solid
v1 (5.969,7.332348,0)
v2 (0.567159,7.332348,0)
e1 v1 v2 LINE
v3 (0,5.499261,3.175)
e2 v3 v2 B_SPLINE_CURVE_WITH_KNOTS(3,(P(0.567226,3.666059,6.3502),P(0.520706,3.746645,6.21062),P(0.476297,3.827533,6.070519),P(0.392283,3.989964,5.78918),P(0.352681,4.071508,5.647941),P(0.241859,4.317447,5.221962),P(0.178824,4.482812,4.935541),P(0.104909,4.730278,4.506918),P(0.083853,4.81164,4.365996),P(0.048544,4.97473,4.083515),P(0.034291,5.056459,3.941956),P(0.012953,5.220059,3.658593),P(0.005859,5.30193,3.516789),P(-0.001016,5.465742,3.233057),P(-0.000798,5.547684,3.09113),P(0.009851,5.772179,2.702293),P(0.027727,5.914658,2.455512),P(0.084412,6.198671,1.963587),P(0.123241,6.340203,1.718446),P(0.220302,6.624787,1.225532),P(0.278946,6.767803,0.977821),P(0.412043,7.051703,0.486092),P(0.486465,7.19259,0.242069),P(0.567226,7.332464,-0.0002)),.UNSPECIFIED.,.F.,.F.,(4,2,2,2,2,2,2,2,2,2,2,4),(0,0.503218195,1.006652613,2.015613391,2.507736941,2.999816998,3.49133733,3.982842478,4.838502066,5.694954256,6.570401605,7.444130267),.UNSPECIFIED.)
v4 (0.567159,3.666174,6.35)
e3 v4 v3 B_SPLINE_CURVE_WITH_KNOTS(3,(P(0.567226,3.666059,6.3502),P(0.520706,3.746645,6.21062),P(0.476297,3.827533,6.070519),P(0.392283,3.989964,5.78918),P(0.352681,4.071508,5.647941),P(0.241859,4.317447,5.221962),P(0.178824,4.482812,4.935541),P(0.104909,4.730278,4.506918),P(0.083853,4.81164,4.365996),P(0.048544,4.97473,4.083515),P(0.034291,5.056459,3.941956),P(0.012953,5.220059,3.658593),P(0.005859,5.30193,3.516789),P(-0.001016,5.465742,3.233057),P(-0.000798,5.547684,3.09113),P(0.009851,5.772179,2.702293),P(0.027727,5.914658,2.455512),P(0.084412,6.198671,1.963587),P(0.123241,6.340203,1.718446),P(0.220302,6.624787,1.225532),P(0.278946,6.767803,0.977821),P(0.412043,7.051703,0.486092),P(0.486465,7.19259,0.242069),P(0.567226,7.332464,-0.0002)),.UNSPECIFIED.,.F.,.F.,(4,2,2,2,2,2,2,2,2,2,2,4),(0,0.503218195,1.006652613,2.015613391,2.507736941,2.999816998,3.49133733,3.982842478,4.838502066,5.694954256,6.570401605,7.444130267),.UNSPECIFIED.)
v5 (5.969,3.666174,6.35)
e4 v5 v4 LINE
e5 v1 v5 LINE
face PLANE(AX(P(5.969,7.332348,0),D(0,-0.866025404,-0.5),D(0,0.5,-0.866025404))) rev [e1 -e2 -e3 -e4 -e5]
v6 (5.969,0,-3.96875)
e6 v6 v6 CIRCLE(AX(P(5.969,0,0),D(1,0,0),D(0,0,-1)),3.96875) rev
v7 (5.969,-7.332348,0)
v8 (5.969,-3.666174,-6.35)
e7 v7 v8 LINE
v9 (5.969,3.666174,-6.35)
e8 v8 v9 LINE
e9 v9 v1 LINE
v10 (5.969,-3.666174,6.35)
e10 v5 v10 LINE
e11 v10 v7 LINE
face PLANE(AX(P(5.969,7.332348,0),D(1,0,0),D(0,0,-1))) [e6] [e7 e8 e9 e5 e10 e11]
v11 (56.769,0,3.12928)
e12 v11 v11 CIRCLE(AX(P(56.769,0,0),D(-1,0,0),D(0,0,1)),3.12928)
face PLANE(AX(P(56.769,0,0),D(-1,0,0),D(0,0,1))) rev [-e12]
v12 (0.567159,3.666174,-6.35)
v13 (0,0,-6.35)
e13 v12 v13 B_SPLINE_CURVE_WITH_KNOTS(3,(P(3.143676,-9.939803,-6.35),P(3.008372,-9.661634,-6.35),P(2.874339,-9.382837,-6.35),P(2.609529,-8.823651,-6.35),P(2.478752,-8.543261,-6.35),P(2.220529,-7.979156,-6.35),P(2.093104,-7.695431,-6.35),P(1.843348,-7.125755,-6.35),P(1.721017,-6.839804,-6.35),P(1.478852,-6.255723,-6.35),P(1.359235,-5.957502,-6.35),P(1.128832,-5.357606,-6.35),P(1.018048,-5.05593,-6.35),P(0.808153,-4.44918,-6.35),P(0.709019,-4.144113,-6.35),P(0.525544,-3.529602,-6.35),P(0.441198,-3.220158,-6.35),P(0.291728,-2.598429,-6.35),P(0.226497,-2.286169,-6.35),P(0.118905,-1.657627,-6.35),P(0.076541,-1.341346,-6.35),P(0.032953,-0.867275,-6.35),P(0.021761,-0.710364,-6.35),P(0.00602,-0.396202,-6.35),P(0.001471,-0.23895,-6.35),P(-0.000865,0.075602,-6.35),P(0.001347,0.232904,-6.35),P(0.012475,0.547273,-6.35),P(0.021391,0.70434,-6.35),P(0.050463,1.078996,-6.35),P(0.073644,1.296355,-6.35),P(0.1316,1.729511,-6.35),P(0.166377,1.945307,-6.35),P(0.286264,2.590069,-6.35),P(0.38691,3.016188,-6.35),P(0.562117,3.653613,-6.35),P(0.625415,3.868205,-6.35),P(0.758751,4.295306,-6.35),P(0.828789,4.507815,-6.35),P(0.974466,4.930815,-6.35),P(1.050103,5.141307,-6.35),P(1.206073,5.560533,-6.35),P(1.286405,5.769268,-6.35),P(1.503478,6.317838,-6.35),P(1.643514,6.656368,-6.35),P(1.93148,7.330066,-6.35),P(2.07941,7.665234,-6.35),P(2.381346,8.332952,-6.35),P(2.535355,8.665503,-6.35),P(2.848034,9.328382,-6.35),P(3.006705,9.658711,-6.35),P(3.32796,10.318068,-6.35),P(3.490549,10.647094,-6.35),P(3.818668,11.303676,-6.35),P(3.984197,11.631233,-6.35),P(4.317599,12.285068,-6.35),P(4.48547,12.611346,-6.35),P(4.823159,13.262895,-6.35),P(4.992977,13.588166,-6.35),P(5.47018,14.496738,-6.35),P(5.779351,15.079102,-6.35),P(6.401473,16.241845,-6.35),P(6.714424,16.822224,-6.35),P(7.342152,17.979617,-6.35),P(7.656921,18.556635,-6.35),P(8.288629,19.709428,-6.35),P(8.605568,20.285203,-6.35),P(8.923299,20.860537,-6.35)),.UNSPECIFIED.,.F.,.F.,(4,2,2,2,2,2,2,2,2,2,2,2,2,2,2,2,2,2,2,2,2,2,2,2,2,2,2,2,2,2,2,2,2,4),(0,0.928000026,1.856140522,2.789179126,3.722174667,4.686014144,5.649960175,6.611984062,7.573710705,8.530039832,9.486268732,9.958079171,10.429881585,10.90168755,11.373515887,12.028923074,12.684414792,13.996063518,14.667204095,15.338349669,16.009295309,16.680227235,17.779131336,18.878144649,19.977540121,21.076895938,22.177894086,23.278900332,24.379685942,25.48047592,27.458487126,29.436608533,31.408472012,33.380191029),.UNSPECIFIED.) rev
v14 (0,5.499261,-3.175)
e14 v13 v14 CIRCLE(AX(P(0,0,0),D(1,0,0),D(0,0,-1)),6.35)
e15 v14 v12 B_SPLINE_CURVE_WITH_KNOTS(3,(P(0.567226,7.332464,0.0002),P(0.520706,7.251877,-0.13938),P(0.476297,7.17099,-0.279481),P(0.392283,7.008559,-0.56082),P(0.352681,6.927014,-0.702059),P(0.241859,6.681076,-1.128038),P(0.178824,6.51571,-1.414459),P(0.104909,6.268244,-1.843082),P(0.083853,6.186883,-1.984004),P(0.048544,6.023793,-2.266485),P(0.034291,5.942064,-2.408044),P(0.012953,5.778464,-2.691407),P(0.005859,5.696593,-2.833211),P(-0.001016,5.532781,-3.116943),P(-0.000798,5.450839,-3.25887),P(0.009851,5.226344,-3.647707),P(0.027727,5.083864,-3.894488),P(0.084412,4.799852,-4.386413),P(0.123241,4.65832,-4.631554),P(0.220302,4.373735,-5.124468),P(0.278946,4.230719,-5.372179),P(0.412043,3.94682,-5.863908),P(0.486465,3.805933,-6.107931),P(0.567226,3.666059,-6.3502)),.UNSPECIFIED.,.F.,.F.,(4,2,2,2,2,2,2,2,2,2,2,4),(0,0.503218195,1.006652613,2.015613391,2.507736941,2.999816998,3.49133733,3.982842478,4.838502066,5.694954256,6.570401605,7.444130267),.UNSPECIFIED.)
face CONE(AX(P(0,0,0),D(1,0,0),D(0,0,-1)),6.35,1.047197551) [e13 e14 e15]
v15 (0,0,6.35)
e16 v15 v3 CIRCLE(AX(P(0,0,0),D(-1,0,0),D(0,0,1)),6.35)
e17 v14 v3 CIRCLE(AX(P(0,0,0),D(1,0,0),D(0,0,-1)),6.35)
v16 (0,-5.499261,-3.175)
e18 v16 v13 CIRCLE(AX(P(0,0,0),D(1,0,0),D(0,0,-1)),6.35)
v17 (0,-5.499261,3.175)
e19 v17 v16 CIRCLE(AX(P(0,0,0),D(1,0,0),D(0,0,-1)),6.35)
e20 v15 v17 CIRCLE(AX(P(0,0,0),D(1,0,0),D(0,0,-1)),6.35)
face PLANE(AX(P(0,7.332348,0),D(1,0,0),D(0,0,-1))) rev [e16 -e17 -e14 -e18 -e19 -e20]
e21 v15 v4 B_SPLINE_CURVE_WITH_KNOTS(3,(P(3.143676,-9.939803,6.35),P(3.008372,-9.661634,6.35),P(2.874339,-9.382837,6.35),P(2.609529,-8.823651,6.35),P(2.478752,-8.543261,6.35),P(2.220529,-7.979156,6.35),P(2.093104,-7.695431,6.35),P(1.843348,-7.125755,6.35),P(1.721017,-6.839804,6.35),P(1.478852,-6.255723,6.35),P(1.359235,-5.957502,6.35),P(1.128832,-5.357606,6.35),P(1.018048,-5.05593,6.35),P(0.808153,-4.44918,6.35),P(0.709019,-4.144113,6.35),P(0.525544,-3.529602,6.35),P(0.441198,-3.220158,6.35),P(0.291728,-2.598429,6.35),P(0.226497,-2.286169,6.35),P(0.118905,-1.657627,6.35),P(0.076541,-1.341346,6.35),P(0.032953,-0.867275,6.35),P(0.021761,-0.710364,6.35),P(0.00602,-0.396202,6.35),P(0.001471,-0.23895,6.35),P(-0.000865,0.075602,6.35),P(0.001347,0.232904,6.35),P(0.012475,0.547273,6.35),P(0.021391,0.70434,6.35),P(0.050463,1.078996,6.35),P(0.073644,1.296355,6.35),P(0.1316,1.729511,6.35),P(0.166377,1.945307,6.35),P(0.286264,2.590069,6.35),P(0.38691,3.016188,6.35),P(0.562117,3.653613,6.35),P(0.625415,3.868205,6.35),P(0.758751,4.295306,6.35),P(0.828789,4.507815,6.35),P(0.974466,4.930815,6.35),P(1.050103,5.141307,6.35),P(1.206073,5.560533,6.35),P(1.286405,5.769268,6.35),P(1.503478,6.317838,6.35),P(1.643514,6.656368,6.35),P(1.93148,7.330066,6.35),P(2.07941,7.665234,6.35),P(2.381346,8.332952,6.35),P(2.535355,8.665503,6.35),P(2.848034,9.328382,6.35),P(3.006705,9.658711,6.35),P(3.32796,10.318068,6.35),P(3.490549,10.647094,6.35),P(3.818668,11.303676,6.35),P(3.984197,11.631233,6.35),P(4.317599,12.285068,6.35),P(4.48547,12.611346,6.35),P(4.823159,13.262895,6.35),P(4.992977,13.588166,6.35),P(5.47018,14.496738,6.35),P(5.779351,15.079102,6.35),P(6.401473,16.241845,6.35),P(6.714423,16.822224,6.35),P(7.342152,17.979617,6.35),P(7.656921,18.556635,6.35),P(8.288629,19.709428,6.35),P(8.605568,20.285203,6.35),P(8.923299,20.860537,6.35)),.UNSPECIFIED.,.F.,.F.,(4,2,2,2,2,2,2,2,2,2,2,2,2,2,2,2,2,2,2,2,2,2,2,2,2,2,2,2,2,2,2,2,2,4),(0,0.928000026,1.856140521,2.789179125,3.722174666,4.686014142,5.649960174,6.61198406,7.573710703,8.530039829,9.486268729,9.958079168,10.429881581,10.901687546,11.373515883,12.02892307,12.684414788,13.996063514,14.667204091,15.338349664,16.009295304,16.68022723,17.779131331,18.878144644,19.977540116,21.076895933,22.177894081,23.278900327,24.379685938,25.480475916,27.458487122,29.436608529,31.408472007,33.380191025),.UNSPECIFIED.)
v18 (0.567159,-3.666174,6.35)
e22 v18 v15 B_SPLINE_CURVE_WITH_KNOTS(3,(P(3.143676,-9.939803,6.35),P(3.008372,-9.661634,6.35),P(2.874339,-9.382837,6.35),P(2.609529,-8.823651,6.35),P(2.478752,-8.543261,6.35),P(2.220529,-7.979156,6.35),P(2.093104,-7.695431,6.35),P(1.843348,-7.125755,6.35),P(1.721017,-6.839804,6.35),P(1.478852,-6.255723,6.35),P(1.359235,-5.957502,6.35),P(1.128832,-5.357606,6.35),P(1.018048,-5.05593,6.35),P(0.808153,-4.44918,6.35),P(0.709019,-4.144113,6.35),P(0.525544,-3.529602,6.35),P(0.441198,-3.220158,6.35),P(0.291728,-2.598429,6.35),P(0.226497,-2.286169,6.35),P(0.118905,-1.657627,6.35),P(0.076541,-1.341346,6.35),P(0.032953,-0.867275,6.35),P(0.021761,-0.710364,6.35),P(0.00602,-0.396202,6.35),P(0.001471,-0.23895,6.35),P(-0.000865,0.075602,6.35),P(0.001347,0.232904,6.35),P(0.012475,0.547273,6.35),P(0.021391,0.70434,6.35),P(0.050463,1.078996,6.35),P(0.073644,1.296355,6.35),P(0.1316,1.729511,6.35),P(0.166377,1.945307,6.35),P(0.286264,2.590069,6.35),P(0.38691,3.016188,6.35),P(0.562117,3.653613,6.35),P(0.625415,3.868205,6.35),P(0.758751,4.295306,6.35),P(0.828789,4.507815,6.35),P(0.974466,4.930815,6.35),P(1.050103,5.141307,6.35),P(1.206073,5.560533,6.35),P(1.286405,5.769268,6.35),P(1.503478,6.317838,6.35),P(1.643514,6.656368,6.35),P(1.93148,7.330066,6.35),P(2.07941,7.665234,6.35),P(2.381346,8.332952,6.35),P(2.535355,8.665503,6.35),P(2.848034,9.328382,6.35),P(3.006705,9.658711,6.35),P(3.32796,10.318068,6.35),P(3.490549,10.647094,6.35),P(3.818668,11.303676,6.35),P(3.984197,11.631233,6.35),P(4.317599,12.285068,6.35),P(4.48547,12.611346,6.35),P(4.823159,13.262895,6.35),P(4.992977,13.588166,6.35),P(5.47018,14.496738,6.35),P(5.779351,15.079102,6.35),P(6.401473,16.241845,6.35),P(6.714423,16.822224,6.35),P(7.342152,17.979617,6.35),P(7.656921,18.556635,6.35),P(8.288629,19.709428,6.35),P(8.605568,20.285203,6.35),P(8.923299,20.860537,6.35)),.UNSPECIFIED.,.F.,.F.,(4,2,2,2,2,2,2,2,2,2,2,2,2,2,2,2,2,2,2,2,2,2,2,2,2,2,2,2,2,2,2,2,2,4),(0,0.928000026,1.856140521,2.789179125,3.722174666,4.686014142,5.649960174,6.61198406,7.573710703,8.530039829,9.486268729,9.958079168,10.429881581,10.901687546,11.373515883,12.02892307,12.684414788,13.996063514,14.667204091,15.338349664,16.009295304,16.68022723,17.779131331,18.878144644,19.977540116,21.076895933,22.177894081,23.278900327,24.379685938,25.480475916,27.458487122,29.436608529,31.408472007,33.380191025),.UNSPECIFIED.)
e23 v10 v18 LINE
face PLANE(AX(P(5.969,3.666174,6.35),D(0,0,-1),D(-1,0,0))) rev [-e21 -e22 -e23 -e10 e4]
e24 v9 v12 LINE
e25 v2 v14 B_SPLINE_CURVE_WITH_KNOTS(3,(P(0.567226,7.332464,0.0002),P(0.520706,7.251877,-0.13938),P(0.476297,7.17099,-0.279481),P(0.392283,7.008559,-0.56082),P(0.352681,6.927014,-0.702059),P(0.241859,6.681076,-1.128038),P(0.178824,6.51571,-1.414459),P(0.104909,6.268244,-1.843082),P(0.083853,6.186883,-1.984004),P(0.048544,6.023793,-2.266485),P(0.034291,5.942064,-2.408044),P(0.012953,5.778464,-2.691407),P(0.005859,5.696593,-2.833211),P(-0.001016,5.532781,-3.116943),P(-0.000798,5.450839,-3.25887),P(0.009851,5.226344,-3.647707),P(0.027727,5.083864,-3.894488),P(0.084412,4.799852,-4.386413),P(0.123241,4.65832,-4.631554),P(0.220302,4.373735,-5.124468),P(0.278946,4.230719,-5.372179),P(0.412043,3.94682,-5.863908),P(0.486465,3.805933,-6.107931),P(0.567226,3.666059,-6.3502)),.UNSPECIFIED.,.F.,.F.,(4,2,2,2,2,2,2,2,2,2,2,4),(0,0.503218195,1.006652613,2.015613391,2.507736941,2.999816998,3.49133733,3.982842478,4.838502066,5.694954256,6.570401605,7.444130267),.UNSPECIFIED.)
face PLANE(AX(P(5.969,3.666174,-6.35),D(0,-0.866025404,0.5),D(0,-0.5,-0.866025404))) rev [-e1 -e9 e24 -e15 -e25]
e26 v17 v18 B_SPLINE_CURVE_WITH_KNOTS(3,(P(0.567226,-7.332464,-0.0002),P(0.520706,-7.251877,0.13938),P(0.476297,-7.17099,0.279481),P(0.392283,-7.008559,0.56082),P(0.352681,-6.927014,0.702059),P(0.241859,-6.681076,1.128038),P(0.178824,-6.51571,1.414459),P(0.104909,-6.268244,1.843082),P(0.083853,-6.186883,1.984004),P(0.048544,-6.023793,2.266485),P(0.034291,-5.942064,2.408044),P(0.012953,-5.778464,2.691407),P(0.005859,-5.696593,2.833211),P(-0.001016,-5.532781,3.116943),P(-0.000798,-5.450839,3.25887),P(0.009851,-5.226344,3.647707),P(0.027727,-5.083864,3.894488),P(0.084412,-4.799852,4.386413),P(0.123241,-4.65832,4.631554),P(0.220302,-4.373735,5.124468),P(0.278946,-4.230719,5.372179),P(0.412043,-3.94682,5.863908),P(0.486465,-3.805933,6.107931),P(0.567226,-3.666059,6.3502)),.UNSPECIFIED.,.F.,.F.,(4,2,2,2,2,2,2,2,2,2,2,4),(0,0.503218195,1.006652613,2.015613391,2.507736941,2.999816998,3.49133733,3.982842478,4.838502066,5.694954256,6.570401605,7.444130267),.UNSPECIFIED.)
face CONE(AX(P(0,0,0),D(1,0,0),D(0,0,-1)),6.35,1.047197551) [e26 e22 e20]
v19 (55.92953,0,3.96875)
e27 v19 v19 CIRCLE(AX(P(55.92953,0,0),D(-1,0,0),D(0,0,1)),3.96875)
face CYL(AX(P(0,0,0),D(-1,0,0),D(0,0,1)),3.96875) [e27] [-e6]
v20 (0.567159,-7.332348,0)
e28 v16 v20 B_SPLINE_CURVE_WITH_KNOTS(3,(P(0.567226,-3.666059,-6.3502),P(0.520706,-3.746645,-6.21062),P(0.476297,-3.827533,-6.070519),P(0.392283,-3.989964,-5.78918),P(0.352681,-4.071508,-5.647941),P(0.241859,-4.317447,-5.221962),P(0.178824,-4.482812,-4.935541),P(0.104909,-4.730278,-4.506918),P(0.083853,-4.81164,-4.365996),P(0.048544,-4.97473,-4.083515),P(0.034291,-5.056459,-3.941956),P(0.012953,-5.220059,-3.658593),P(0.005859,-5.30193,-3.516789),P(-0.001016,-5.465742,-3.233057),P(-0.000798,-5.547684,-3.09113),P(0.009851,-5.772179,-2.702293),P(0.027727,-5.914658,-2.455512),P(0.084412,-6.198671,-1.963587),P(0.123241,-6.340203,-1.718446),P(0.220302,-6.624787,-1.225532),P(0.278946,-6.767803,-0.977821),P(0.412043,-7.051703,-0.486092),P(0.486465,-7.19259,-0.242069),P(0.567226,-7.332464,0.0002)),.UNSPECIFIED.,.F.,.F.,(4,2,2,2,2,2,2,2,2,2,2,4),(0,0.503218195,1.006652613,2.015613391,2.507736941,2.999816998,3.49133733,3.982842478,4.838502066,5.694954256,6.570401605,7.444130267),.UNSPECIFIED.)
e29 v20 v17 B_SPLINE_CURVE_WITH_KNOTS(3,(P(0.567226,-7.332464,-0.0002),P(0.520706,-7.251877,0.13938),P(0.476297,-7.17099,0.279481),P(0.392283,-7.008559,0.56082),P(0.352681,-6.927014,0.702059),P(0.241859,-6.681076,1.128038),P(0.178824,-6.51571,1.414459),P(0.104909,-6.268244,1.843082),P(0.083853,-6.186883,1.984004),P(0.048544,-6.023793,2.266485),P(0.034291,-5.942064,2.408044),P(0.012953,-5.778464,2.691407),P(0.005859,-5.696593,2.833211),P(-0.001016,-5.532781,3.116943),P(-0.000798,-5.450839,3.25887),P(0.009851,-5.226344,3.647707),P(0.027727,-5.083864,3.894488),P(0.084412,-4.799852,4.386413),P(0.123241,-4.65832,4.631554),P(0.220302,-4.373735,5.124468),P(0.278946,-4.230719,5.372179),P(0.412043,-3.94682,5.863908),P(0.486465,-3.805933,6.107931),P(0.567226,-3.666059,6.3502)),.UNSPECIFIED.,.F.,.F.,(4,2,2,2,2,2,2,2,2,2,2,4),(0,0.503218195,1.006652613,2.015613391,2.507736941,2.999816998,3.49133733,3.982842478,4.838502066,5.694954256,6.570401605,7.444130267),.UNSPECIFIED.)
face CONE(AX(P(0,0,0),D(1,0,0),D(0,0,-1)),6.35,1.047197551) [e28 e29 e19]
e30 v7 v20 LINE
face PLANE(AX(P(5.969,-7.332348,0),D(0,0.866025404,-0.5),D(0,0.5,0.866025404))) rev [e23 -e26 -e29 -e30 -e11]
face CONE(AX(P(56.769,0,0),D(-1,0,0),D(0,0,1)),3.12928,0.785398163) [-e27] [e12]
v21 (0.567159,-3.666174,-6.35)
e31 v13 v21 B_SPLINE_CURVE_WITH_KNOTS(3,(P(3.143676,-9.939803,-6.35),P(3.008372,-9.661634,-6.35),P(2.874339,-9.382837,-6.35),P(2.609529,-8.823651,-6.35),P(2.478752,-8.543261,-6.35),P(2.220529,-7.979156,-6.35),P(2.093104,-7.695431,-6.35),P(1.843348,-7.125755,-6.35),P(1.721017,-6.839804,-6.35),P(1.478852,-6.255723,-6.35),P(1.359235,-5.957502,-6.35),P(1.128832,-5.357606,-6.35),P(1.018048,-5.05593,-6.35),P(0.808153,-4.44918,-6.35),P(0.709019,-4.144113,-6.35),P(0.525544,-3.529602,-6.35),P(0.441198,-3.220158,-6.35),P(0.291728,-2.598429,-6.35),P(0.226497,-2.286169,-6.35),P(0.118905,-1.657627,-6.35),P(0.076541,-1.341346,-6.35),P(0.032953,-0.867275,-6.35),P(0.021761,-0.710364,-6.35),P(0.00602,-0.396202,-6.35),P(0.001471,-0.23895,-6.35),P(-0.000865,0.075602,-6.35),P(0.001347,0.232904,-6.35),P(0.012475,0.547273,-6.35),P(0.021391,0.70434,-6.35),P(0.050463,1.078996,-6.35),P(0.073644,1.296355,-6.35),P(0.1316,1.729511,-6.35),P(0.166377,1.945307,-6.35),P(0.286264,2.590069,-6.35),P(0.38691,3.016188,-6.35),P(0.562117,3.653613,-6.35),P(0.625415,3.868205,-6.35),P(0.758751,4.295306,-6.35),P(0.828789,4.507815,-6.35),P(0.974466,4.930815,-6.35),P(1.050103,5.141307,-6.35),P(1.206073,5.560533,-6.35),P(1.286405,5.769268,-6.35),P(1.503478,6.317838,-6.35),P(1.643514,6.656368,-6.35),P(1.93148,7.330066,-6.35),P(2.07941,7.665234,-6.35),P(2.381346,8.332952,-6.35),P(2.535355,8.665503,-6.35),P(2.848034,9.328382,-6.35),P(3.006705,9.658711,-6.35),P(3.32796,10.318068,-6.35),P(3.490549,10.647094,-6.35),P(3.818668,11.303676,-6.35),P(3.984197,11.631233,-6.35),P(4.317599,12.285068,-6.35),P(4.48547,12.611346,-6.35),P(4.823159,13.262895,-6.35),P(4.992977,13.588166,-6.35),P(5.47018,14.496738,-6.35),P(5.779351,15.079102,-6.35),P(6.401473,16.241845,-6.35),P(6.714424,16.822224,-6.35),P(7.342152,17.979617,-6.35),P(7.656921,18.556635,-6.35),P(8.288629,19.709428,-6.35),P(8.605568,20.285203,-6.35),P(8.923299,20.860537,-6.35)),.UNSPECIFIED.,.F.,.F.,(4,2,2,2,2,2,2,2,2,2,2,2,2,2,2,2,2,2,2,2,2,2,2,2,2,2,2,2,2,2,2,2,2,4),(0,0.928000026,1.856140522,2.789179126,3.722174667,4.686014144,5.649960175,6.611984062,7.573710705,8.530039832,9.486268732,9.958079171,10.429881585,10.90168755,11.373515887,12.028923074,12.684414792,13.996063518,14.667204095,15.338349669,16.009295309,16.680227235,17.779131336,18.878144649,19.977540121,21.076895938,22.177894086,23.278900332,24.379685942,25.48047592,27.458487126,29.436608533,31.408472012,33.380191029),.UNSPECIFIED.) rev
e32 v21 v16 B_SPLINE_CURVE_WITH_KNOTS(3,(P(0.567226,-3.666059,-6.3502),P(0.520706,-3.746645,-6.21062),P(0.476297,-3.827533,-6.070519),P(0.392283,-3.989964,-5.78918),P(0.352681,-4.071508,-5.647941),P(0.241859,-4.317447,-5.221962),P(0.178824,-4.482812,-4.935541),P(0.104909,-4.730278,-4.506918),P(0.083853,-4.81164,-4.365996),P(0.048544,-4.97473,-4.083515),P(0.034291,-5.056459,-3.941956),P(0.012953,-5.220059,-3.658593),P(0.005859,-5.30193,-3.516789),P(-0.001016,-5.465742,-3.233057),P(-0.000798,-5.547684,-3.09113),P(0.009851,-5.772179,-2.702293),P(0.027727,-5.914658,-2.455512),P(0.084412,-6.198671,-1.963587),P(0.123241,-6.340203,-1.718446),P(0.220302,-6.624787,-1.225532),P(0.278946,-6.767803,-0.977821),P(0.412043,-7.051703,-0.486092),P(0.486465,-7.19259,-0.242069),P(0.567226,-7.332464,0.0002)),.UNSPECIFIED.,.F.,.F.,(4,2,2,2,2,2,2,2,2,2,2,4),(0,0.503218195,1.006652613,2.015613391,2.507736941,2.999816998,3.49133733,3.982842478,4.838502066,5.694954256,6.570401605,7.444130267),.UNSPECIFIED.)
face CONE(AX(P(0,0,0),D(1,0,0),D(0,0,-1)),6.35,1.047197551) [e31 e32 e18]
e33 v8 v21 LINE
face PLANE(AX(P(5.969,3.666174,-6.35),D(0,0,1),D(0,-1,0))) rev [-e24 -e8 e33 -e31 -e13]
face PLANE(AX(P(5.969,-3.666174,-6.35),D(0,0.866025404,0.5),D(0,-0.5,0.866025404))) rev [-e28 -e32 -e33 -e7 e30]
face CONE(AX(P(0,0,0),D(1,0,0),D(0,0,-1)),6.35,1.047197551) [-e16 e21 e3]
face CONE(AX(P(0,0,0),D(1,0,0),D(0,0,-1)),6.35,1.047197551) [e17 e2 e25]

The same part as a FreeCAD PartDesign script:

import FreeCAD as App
import Part
import Sketcher

V = App.Vector
Q = App.Units.Quantity


def add_polygon(sketch, points):
    """Adds a closed chain of lines whose ends are joined by coincident constraints."""
    first, n = sketch.GeometryCount, len(points)
    for a, b in zip(points, points[1:] + points[:1]):
        sketch.addGeometry(Part.LineSegment(App.Vector(*a, 0), App.Vector(*b, 0)), False)
    for i in range(n):
        sketch.addConstraint(Sketcher.Constraint("Coincident", first + i, 2, first + (i + 1) % n, 1))

doc = App.newDocument("Part")
body = doc.addObject("PartDesign::Body", "Body")

# Sketch on YZ plane
sketch1 = doc.addObject("Sketcher::SketchObject", "Sketch")
body.addObject(sketch1)
sketch1.AttachmentSupport = (doc.YZ_Plane, [""])
sketch1.MapMode = "FlatFace"
add_polygon(sketch1, [(-3.666174, -6.35), (3.666174, -6.35), (7.332348, 0), (3.666174, 6.35), (-3.666174, 6.35), (-7.332348, 0)])  # lines 0-5
sketch1.addConstraint([
    Sketcher.Constraint("Horizontal", 0),
    Sketcher.Constraint("Horizontal", 3),
    Sketcher.Constraint("Symmetric", 0, 2, 3, 2, -1, 1),
    Sketcher.Constraint("Symmetric", 1, 2, 4, 2, -1, 1),
    Sketcher.Constraint("PointOnObject", 1, 2, -1),
    Sketcher.Constraint("Parallel", 2, 5),
    Sketcher.Constraint("Vertical", 0, 2, 2, 2),
    Sketcher.Constraint("Angle", 1, Q("60 deg")),
    Sketcher.Constraint("DistanceY", 0, 2, 2, 2, Q("0.5 in")),
    Sketcher.Constraint("DistanceX", 0, 1, 0, 2, 7.332348),
])
pad1 = doc.addObject("PartDesign::Pad", "Pad")
body.addObject(pad1)
pad1.Profile = sketch1
pad1.Length = Q("0.235 in")

# Sketch on XY plane
sketch2 = doc.addObject("Sketcher::SketchObject", "Sketch001")
body.addObject(sketch2)
sketch2.AttachmentSupport = (doc.XY_Plane, [""])
sketch2.MapMode = "FlatFace"
add_polygon(sketch2, [(0, 0), (56.769, 0), (56.769, 3.12928), (55.92953, 3.96875), (0, 3.96875)])  # lines 0-4
sketch2.addConstraint([
    Sketcher.Constraint("Horizontal", 0),
    Sketcher.Constraint("Vertical", 1),
    Sketcher.Constraint("Horizontal", 3),
    Sketcher.Constraint("Vertical", 4),
    Sketcher.Constraint("Coincident", 4, 2, -1, 1),
    Sketcher.Constraint("Angle", 2, Q("135 deg")),
    Sketcher.Constraint("DistanceX", 0, 1, 0, 2, Q("2.235 in")),
    Sketcher.Constraint("DistanceY", 4, 2, 4, 1, Q("0.15625 in")),
    Sketcher.Constraint("DistanceY", 1, 1, 1, 2, Q("0.1232 in")),
])
revolution = doc.addObject("PartDesign::Revolution", "Revolution")
body.addObject(revolution)
revolution.Profile = sketch2
revolution.ReferenceAxis = (sketch2, ["H_Axis"])
revolution.Angle = 360

# Sketch on XY plane
sketch3 = doc.addObject("Sketcher::SketchObject", "Sketch002")
body.addObject(sketch3)
sketch3.AttachmentSupport = (doc.XY_Plane, [""])
sketch3.MapMode = "FlatFace"
add_polygon(sketch3, [(0, 6.35), (4.233333, 13.682348), (4.233333, 20.032348), (-12.7, 20.032348), (-12.7, 6.35)])  # lines 0-4
sketch3.addConstraint([
    Sketcher.Constraint("Vertical", 1),
    Sketcher.Constraint("Horizontal", 2),
    Sketcher.Constraint("Vertical", 3),
    Sketcher.Constraint("Horizontal", 4),
    Sketcher.Constraint("PointOnObject", 4, 2, -2),
    Sketcher.Constraint("DistanceX", 4, 1, 4, 2, Q("0.5 in")),
    Sketcher.Constraint("Angle", 0, Q("60 deg")),
    Sketcher.Constraint("DistanceY", 1, 1, 1, 2, Q("0.25 in")),
    Sketcher.Constraint("DistanceY", -1, 1, 3, 2, Q("0.25 in")),
    Sketcher.Constraint("DistanceY", 3, 2, 3, 1, 13.682348),
])
groove = doc.addObject("PartDesign::Groove", "Groove")
body.addObject(groove)
groove.Profile = sketch3
groove.ReferenceAxis = (sketch3, ["H_Axis"])
groove.Angle = 360

doc.recompute()
